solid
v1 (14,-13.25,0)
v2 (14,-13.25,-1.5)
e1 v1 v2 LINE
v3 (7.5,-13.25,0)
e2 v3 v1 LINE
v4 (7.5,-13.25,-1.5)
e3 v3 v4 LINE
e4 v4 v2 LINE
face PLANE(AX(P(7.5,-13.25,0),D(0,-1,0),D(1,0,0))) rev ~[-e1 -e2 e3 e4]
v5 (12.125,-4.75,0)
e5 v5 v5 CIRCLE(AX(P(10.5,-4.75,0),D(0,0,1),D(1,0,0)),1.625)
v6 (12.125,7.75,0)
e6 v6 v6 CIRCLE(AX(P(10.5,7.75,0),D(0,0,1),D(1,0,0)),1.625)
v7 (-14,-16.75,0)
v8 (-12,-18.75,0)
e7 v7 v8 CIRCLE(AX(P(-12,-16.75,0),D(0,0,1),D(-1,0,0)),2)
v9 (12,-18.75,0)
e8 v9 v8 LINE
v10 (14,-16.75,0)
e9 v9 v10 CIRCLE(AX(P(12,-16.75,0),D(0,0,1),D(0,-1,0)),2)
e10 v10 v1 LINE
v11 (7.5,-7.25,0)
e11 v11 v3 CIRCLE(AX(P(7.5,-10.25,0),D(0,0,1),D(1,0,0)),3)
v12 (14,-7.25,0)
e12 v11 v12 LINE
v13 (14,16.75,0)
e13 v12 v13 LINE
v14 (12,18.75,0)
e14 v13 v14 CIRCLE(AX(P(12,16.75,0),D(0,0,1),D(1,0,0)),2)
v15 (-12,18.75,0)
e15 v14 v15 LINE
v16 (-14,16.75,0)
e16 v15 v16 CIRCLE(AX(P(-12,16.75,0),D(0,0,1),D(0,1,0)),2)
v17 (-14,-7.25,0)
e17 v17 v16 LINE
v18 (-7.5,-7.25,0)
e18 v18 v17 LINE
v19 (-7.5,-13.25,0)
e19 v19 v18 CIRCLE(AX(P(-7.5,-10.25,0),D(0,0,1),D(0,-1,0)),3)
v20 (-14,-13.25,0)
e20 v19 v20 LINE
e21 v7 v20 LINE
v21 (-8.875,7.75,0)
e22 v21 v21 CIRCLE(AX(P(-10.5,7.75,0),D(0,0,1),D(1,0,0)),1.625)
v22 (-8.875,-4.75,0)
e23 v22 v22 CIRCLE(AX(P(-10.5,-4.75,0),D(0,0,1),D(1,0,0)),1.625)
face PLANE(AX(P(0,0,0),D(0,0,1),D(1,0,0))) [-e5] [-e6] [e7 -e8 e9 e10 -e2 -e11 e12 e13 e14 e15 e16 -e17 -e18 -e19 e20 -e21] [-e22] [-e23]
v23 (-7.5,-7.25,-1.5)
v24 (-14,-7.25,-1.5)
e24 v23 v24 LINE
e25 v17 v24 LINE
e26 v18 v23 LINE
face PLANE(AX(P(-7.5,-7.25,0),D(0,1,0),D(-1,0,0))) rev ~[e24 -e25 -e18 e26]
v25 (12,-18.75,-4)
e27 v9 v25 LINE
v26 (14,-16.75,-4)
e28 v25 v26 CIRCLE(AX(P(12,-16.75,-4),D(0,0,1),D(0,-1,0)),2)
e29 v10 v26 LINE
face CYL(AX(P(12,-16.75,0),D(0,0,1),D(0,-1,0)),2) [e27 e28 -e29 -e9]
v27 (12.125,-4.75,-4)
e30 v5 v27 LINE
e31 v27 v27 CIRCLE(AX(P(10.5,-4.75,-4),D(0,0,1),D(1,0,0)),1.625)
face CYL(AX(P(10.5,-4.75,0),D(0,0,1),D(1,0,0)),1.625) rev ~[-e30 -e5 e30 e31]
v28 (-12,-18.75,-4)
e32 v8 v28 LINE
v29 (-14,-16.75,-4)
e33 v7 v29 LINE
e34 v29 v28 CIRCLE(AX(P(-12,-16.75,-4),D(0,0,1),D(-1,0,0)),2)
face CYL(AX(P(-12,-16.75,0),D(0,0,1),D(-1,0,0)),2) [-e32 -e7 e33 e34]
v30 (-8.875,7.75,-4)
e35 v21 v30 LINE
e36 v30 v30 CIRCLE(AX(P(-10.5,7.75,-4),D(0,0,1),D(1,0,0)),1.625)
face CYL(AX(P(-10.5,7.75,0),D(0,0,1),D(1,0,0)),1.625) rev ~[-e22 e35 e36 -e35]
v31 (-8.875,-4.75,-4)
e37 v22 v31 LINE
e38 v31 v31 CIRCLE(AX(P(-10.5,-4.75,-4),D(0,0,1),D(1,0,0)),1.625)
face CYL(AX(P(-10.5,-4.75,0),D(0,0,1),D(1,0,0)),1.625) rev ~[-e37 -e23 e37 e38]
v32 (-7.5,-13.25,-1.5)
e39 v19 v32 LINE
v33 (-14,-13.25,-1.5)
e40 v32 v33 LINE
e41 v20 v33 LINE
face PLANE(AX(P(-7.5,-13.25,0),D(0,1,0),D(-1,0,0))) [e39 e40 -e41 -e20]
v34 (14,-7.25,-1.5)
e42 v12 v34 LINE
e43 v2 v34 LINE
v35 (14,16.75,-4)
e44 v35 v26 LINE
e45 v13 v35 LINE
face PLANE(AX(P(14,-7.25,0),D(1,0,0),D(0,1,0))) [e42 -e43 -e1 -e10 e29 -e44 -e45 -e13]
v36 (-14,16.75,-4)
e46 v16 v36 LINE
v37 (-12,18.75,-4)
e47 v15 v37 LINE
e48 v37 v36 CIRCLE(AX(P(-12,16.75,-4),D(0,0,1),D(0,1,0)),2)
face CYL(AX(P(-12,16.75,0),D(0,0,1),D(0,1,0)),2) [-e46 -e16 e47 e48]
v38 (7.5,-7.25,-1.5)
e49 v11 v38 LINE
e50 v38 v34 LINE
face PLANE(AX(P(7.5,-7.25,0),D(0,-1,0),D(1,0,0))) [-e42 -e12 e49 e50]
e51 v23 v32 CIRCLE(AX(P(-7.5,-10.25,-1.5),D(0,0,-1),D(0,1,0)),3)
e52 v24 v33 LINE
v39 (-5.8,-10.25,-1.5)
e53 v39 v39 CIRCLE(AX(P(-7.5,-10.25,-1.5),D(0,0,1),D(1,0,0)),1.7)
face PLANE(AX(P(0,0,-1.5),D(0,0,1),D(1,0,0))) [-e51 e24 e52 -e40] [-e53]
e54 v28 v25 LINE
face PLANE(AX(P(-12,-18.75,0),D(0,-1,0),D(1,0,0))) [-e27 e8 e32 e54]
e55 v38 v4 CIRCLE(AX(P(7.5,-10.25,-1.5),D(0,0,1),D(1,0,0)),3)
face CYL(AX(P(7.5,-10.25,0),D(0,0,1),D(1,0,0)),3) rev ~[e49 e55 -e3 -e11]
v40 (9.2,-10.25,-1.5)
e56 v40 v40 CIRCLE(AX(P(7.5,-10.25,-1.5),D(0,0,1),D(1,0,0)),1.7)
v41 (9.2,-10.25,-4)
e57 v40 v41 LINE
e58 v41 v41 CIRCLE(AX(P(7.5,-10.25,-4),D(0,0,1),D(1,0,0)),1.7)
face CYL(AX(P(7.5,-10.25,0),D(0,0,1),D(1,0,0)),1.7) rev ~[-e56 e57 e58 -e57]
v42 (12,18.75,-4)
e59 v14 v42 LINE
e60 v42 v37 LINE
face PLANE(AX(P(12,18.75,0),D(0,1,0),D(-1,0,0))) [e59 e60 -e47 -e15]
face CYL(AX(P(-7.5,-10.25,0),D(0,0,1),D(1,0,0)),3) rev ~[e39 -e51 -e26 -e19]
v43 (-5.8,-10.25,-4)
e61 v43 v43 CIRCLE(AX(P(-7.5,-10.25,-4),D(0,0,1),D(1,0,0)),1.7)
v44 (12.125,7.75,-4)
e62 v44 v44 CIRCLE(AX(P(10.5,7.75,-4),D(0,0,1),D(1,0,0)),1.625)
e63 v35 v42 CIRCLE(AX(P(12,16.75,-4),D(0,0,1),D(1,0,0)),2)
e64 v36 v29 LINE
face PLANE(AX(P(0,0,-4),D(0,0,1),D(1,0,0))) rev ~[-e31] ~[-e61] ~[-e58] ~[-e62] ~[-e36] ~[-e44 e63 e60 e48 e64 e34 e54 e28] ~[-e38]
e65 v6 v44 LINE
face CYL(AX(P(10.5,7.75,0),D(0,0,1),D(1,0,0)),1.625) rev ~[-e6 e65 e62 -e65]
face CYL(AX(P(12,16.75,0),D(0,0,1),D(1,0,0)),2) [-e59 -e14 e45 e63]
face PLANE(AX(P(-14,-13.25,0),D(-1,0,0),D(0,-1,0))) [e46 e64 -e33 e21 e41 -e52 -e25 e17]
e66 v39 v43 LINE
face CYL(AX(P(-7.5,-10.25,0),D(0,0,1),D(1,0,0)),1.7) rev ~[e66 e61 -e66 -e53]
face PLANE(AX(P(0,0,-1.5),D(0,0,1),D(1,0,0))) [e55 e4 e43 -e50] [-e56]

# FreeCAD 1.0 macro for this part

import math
import FreeCAD as App
import Part
import Sketcher

doc = App.newDocument("Part")
body = doc.addObject("PartDesign::Body", "Body")

sketch1 = body.newObject("Sketcher::SketchObject", "Sketch")
sketch1.AttachmentSupport = (doc.getObject("XY_Plane"), [""])
sketch1.MapMode = "FlatFace"
sketch1.addGeometry(Part.ArcOfCircle(Part.Circle(App.Vector(-12, -16.75, 0), App.Vector(0, 0, 1), 2), math.radians(180), math.radians(270)), False)
sketch1.addGeometry(Part.LineSegment(App.Vector(-12, -18.75, 0), App.Vector(12, -18.75, 0)), False)
sketch1.addGeometry(Part.ArcOfCircle(Part.Circle(App.Vector(12, -16.75, 0), App.Vector(0, 0, 1), 2), math.radians(-90), math.radians(0)), False)
sketch1.addGeometry(Part.LineSegment(App.Vector(14, -16.75, 0), App.Vector(14, 16.75, 0)), False)
sketch1.addGeometry(Part.ArcOfCircle(Part.Circle(App.Vector(12, 16.75, 0), App.Vector(0, 0, 1), 2), math.radians(0), math.radians(90)), False)
sketch1.addGeometry(Part.LineSegment(App.Vector(12, 18.75, 0), App.Vector(-12, 18.75, 0)), False)
sketch1.addGeometry(Part.ArcOfCircle(Part.Circle(App.Vector(-12, 16.75, 0), App.Vector(0, 0, 1), 2), math.radians(90), math.radians(180)), False)
sketch1.addGeometry(Part.LineSegment(App.Vector(-14, 16.75, 0), App.Vector(-14, -16.75, 0)), False)
sketch1.addGeometry(Part.Circle(App.Vector(-10.5, -4.75, 0), App.Vector(0, 0, 1), 1.625), False)
sketch1.addGeometry(Part.Circle(App.Vector(10.5, -4.75, 0), App.Vector(0, 0, 1), 1.625), False)
sketch1.addGeometry(Part.Circle(App.Vector(-10.5, 7.75, 0), App.Vector(0, 0, 1), 1.625), False)
sketch1.addGeometry(Part.Circle(App.Vector(10.5, 7.75, 0), App.Vector(0, 0, 1), 1.625), False)
sketch1.addGeometry(Part.Circle(App.Vector(-7.5, -10.25, 0), App.Vector(0, 0, 1), 1.7), False)
sketch1.addGeometry(Part.Circle(App.Vector(7.5, -10.25, 0), App.Vector(0, 0, 1), 1.7), False)
sketch1.addConstraint(Sketcher.Constraint("Tangent", 0, 2, 1, 1))
sketch1.addConstraint(Sketcher.Constraint("Tangent", 1, 2, 2, 1))
sketch1.addConstraint(Sketcher.Constraint("Tangent", 2, 2, 3, 1))
sketch1.addConstraint(Sketcher.Constraint("Tangent", 3, 2, 4, 1))
sketch1.addConstraint(Sketcher.Constraint("Tangent", 4, 2, 5, 1))
sketch1.addConstraint(Sketcher.Constraint("Tangent", 5, 2, 6, 1))
sketch1.addConstraint(Sketcher.Constraint("Tangent", 6, 2, 7, 1))
sketch1.addConstraint(Sketcher.Constraint("Tangent", 7, 2, 0, 1))
sketch1.addConstraint(Sketcher.Constraint("Horizontal", 1))
sketch1.addConstraint(Sketcher.Constraint("Vertical", 3))
sketch1.addConstraint(Sketcher.Constraint("Horizontal", 5))
sketch1.addConstraint(Sketcher.Constraint("Vertical", 7))
sketch1.addConstraint(Sketcher.Constraint("Equal", 0, 2))
sketch1.addConstraint(Sketcher.Constraint("Equal", 2, 4))
sketch1.addConstraint(Sketcher.Constraint("Equal", 4, 6))
sketch1.addConstraint(Sketcher.Constraint("Equal", 8, 9))
sketch1.addConstraint(Sketcher.Constraint("Equal", 9, 10))
sketch1.addConstraint(Sketcher.Constraint("Equal", 10, 11))
sketch1.addConstraint(Sketcher.Constraint("Equal", 12, 13))
sketch1.addConstraint(Sketcher.Constraint("Symmetric", 0, 3, 4, 3, -1, 1))
sketch1.addConstraint(Sketcher.Constraint("Symmetric", 8, 3, 9, 3, -2))
sketch1.addConstraint(Sketcher.Constraint("Symmetric", 10, 3, 11, 3, -2))
sketch1.addConstraint(Sketcher.Constraint("Symmetric", 12, 3, 13, 3, -2))
sketch1.addConstraint(Sketcher.Constraint("Vertical", 8, 3, 10, 3))
sketch1.addConstraint(Sketcher.Constraint("Radius", 0, 2.0))
sketch1.addConstraint(Sketcher.Constraint("Diameter", 12, 3.4))
sketch1.addConstraint(Sketcher.Constraint("Diameter", 8, 3.25))
sketch1.addConstraint(Sketcher.Constraint("DistanceX", 8, 3, 9, 3, 21.0))
sketch1.addConstraint(Sketcher.Constraint("DistanceX", 12, 3, 13, 3, 15.0))
sketch1.addConstraint(Sketcher.Constraint("DistanceY", 11, 3, 4, 2, 11.0))
sketch1.addConstraint(Sketcher.Constraint("DistanceY", 8, 3, 10, 3, 12.5))
sketch1.addConstraint(Sketcher.Constraint("DistanceY", 0, 2, 12, 3, 8.5))
sketch1.addConstraint(Sketcher.Constraint("DistanceX", 1, 1, 1, 2, 24.0))
sketch1.addConstraint(Sketcher.Constraint("DistanceY", 3, 1, 3, 2, 33.5))
pad1 = body.newObject("PartDesign::Pad", "Pad")
pad1.Profile = sketch1
pad1.Length = 4
pad1.Reversed = True

sketch2 = body.newObject("Sketcher::SketchObject", "Sketch001")
sketch2.AttachmentSupport = (doc.getObject("XY_Plane"), [""])
sketch2.MapMode = "FlatFace"
sketch2.addGeometry(Part.LineSegment(App.Vector(-14, -7.25, 0), App.Vector(-14, -13.25, 0)), False)
sketch2.addGeometry(Part.LineSegment(App.Vector(-14, -13.25, 0), App.Vector(-7.5, -13.25, 0)), False)
sketch2.addGeometry(Part.ArcOfCircle(Part.Circle(App.Vector(-7.5, -10.25, 0), App.Vector(0, 0, 1), 3), math.radians(-90), math.radians(90)), False)
sketch2.addGeometry(Part.LineSegment(App.Vector(-7.5, -7.25, 0), App.Vector(-14, -7.25, 0)), False)
sketch2.addGeometry(Part.Circle(App.Vector(-7.5, -10.25, 0), App.Vector(0, 0, 1), 1.7), False)
sketch2.addGeometry(Part.LineSegment(App.Vector(7.5, -13.25, 0), App.Vector(14, -13.25, 0)), False)
sketch2.addGeometry(Part.LineSegment(App.Vector(14, -13.25, 0), App.Vector(14, -7.25, 0)), False)
sketch2.addGeometry(Part.LineSegment(App.Vector(14, -7.25, 0), App.Vector(7.5, -7.25, 0)), False)
sketch2.addGeometry(Part.ArcOfCircle(Part.Circle(App.Vector(7.5, -10.25, 0), App.Vector(0, 0, 1), 3), math.radians(90), math.radians(270)), False)
sketch2.addGeometry(Part.Circle(App.Vector(7.5, -10.25, 0), App.Vector(0, 0, 1), 1.7), False)
sketch2.addConstraint(Sketcher.Constraint("Coincident", 0, 2, 1, 1))
sketch2.addConstraint(Sketcher.Constraint("Tangent", 1, 2, 2, 1))
sketch2.addConstraint(Sketcher.Constraint("Tangent", 2, 2, 3, 1))
sketch2.addConstraint(Sketcher.Constraint("Coincident", 3, 2, 0, 1))
sketch2.addConstraint(Sketcher.Constraint("Coincident", 5, 2, 6, 1))
sketch2.addConstraint(Sketcher.Constraint("Coincident", 6, 2, 7, 1))
sketch2.addConstraint(Sketcher.Constraint("Tangent", 7, 2, 8, 1))
sketch2.addConstraint(Sketcher.Constraint("Tangent", 8, 2, 5, 1))
sketch2.addConstraint(Sketcher.Constraint("Vertical", 0))
sketch2.addConstraint(Sketcher.Constraint("Horizontal", 1))
sketch2.addConstraint(Sketcher.Constraint("Horizontal", 3))
sketch2.addConstraint(Sketcher.Constraint("Horizontal", 5))
sketch2.addConstraint(Sketcher.Constraint("Vertical", 6))
sketch2.addConstraint(Sketcher.Constraint("Horizontal", 7))
sketch2.addConstraint(Sketcher.Constraint("Coincident", 4, 3, 2, 3))
sketch2.addConstraint(Sketcher.Constraint("Coincident", 9, 3, 8, 3))
sketch2.addConstraint(Sketcher.Constraint("Equal", 2, 8))
sketch2.addConstraint(Sketcher.Constraint("Equal", 4, 9))
sketch2.addConstraint(Sketcher.Constraint("Symmetric", 2, 3, 8, 3, -2))
sketch2.addConstraint(Sketcher.Constraint("Equal", 3, 5))
sketch2.addConstraint(Sketcher.Constraint("Radius", 2, 3.0))
sketch2.addConstraint(Sketcher.Constraint("Diameter", 4, 3.4))
sketch2.addConstraint(Sketcher.Constraint("DistanceX", 2, 3, 8, 3, 15.0))
sketch2.addConstraint(Sketcher.Constraint("DistanceX", 1, 1, 1, 2, 6.5))
sketch2.addConstraint(Sketcher.Constraint("DistanceY", 2, 3, -1, 1, 10.25))
pocket1 = body.newObject("PartDesign::Pocket", "Pocket")
pocket1.Profile = sketch2
pocket1.Length = 1.5

doc.recompute()
